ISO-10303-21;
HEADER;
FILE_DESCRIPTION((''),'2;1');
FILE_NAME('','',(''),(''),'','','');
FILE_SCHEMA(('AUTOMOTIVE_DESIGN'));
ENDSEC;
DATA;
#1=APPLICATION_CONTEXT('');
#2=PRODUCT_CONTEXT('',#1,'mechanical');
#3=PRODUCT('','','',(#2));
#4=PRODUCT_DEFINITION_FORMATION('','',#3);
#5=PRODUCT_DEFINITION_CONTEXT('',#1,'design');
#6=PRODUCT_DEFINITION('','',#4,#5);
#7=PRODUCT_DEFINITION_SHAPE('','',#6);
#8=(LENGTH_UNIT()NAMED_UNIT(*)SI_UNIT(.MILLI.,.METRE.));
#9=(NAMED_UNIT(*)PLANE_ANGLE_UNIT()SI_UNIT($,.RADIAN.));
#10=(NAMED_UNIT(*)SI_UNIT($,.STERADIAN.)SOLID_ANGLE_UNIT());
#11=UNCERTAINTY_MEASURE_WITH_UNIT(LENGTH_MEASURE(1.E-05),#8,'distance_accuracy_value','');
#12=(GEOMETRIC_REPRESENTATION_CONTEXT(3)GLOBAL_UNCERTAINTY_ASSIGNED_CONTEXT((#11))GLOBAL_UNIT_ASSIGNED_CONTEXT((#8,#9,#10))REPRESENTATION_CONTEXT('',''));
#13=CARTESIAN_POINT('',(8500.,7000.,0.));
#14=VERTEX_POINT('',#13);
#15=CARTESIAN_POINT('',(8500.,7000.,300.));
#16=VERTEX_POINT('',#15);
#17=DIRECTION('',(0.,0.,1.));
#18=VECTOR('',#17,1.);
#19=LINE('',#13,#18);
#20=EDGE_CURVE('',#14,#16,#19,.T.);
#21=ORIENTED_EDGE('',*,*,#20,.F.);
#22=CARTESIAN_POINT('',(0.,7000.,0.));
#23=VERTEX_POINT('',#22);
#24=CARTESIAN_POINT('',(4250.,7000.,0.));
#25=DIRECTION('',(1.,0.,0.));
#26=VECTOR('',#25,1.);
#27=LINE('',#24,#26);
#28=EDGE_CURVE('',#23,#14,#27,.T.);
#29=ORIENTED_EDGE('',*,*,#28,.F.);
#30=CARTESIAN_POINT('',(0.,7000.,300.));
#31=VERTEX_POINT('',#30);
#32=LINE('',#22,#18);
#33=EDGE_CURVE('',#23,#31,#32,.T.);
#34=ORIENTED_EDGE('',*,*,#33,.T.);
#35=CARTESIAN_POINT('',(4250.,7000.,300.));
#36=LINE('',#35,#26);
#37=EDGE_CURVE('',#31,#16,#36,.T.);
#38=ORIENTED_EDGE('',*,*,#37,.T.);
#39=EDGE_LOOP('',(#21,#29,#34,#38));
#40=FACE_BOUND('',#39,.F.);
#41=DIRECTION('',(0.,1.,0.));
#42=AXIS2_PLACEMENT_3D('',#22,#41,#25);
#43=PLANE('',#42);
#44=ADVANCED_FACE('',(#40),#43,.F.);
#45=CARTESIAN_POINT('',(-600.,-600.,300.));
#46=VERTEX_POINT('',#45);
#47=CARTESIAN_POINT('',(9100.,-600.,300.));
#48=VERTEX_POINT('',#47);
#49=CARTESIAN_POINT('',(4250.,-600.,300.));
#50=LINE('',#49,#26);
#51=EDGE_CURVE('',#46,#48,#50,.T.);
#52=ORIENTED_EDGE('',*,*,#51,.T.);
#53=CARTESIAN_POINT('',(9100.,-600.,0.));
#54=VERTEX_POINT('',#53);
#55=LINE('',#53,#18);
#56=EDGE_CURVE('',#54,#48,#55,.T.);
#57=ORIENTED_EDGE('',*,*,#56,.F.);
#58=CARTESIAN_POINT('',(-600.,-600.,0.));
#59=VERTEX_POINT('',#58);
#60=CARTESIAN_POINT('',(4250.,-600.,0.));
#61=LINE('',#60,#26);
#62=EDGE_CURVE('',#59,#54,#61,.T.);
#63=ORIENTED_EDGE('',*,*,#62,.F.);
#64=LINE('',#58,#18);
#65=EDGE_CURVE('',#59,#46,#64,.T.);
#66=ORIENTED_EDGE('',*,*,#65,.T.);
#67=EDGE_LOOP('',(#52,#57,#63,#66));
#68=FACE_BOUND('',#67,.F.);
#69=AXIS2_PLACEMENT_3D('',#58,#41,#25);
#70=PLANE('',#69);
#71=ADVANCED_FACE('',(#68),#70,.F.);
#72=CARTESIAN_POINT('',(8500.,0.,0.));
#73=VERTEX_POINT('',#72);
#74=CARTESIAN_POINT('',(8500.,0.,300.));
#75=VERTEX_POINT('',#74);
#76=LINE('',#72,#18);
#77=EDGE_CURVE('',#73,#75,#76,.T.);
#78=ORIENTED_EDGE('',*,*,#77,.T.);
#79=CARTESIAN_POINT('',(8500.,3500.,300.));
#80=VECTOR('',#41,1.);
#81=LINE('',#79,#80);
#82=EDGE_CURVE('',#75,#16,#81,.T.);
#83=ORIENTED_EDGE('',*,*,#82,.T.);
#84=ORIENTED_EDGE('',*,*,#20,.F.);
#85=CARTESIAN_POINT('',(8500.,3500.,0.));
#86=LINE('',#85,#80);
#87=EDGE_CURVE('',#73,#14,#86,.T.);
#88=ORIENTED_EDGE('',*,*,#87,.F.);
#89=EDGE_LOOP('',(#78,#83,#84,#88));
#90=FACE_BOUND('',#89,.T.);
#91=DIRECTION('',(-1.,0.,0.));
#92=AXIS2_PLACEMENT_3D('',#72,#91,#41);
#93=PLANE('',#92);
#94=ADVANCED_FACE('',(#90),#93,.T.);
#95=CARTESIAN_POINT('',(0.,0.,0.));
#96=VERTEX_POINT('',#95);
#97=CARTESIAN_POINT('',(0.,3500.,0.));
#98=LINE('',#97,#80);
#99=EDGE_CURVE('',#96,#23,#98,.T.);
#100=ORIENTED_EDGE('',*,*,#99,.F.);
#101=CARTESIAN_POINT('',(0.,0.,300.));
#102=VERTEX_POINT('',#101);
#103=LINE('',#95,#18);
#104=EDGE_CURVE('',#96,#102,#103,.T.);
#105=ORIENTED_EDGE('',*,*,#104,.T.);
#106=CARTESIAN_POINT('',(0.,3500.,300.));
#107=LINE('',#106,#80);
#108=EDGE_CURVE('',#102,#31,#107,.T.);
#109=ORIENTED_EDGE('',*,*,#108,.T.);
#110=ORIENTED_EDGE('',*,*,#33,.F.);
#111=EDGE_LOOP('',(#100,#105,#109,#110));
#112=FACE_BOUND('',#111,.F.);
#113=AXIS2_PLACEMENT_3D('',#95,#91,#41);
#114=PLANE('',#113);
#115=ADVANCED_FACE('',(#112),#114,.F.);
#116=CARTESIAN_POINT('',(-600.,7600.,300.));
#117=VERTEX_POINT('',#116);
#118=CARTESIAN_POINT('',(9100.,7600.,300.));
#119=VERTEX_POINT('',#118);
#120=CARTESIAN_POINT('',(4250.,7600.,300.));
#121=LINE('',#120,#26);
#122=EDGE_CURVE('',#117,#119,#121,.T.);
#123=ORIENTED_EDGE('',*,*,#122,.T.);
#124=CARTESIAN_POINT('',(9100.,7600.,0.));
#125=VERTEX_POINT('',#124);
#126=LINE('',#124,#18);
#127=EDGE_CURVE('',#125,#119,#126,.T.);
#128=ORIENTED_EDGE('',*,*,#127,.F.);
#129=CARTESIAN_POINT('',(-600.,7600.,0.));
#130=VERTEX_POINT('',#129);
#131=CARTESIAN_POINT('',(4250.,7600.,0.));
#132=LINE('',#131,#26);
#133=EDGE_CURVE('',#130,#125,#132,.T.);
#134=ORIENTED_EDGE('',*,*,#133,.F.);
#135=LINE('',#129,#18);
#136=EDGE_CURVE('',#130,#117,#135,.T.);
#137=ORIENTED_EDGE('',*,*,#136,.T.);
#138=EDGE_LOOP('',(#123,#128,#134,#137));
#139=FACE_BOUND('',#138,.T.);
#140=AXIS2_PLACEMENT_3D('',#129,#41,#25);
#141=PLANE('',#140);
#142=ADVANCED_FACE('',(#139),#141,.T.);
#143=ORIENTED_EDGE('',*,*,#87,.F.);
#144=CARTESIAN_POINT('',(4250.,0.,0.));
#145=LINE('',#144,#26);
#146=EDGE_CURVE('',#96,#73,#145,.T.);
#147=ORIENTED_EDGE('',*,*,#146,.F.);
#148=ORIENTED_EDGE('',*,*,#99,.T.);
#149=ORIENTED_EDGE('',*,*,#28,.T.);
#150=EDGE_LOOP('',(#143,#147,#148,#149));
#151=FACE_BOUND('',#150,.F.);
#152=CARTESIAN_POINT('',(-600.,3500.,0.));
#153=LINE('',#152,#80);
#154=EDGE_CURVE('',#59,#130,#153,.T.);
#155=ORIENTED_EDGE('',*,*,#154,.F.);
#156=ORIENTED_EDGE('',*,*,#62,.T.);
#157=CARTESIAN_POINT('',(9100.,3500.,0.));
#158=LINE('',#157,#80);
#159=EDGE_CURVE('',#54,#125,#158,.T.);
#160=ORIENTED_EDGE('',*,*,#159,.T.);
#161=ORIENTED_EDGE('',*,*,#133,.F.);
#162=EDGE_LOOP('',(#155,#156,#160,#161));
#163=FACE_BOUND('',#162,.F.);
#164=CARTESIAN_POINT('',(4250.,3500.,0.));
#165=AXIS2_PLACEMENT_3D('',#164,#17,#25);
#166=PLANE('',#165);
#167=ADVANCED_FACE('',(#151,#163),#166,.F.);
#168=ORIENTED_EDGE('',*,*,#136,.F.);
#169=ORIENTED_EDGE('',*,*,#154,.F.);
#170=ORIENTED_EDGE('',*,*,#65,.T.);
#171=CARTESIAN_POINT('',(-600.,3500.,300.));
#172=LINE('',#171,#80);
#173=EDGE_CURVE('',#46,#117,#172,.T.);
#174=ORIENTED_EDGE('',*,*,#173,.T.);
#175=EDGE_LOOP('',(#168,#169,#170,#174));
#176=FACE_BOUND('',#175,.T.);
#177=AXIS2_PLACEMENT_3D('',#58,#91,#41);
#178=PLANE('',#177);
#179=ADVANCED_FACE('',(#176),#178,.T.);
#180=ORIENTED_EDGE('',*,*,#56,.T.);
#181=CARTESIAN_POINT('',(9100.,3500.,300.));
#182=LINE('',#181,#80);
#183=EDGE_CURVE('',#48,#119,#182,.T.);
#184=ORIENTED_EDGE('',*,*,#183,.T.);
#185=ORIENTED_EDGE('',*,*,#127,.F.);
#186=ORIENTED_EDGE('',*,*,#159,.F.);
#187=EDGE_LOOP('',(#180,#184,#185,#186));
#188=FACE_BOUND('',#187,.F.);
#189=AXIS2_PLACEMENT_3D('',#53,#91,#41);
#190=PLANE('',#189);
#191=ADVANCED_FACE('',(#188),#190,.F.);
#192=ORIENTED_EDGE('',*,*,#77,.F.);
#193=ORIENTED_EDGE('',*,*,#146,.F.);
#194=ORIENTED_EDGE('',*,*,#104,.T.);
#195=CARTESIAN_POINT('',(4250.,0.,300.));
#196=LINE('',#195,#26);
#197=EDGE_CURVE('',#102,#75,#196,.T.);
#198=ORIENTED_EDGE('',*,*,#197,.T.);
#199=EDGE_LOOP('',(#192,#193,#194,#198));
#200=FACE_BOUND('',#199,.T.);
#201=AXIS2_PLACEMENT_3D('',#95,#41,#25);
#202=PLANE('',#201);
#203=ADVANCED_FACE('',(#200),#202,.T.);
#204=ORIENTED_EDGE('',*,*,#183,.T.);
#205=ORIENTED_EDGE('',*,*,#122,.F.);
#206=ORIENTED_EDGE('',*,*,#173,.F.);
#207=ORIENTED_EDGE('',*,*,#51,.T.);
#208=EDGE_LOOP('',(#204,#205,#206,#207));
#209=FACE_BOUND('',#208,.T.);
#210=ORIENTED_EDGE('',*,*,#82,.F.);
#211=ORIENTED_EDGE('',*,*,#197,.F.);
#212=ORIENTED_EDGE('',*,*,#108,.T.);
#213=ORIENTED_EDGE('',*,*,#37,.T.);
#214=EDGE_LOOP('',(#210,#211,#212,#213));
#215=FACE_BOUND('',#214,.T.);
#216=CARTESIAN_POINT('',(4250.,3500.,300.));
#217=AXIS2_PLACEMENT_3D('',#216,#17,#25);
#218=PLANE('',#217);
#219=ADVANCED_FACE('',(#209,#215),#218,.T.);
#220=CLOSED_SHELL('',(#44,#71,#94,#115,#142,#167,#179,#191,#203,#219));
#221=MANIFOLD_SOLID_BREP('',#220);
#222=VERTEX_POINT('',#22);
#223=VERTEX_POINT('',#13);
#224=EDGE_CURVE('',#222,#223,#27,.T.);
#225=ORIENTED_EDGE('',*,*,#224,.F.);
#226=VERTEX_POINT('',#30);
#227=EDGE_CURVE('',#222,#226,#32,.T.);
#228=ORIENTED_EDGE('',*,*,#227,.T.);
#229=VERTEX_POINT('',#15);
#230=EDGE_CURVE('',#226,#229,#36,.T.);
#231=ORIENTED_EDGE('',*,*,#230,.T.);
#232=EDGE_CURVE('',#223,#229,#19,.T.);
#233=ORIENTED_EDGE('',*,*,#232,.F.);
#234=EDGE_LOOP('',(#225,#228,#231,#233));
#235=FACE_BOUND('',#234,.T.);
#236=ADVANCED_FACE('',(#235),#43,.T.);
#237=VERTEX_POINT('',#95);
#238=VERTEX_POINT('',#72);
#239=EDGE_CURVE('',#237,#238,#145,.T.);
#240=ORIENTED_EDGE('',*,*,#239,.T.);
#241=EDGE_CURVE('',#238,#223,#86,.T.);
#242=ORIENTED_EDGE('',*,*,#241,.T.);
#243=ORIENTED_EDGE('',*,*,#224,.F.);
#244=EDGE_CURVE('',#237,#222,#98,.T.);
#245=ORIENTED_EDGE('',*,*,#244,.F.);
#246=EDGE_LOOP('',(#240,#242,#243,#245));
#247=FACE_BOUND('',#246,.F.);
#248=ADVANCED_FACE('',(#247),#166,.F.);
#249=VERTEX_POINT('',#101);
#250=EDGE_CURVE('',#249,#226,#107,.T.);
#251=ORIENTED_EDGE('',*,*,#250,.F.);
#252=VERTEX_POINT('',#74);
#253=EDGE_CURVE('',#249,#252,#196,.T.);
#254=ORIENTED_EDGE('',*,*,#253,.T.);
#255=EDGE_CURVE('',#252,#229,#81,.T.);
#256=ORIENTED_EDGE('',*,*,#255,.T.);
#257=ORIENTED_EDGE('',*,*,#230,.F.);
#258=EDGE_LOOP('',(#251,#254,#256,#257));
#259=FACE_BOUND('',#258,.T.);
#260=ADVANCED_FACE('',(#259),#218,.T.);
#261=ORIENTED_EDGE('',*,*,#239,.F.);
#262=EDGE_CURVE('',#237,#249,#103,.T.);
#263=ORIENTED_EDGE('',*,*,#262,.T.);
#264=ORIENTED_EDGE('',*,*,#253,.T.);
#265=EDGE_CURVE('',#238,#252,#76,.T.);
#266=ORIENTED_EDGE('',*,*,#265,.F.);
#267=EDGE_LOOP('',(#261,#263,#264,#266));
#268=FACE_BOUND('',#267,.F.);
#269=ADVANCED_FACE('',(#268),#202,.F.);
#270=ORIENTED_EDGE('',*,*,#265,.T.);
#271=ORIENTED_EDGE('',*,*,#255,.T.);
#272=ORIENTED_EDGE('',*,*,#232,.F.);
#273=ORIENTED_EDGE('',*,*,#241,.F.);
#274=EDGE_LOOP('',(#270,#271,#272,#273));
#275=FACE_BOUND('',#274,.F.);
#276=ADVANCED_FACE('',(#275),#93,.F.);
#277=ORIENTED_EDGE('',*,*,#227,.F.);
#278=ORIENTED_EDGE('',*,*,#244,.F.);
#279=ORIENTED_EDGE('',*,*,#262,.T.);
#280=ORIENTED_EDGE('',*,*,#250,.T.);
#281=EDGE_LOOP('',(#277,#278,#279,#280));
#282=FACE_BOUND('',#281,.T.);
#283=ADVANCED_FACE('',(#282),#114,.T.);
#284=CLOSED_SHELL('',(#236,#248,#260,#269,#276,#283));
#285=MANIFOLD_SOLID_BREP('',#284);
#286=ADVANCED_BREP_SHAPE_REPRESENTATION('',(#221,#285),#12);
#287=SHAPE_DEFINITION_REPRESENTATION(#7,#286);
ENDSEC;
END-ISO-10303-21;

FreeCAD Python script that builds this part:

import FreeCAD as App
import Part
import Sketcher

V = App.Vector
Q = App.Units.Quantity


def add_polygon(sketch, points):
    """Adds a closed chain of lines whose ends are joined by coincident constraints."""
    first, n = sketch.GeometryCount, len(points)
    for a, b in zip(points, points[1:] + points[:1]):
        sketch.addGeometry(Part.LineSegment(App.Vector(*a, 0), App.Vector(*b, 0)), False)
    for i in range(n):
        sketch.addConstraint(Sketcher.Constraint("Coincident", first + i, 2, first + (i + 1) % n, 1))

doc = App.newDocument("Part")
body = doc.addObject("PartDesign::Body", "Body")

# Sketch on XY plane
sketch1 = body.newObject("Sketcher::SketchObject", "Sketch")
sketch1.AttachmentSupport = (doc.getObject("XY_Plane"), [""])
sketch1.MapMode = "FlatFace"
add_polygon(sketch1, [(0, 7000), (0, 0), (8500, 0), (8500, 7000)])  # lines 0-3
sketch1.addConstraint([
    Sketcher.Constraint("Vertical", 0),
    Sketcher.Constraint("Horizontal", 1),
    Sketcher.Constraint("Vertical", 2),
    Sketcher.Constraint("Horizontal", 3),
    Sketcher.Constraint("Coincident", 0, 2, -1, 1),
    Sketcher.Constraint("DistanceX", 1, 1, 1, 2, Q("8500 mm")),
    Sketcher.Constraint("DistanceY", 0, 2, 0, 1, Q("7000 mm")),
])
pad1 = body.newObject("PartDesign::Pad", "Pad")
pad1.Profile = sketch1
pad1.Length = 300
body2 = doc.addObject("PartDesign::Body", "Body001")

# Sketch on XY plane
sketch2 = body2.newObject("Sketcher::SketchObject", "Sketch001")
sketch2.AttachmentSupport = (doc.getObject("XY_Plane001"), [""])
sketch2.MapMode = "FlatFace"
add_polygon(sketch2, [(-600, 7600), (-600, -600), (9100, -600), (9100, 7600)])  # lines 0-3
add_polygon(sketch2, [(8500, 0), (0, 0), (0, 7000), (8500, 7000)])  # lines 4-7
sketch2.addConstraint([
    Sketcher.Constraint("Vertical", 0),
    Sketcher.Constraint("Horizontal", 1),
    Sketcher.Constraint("Vertical", 2),
    Sketcher.Constraint("Horizontal", 3),
    Sketcher.Constraint("Horizontal", 4),
    Sketcher.Constraint("Vertical", 5),
    Sketcher.Constraint("Horizontal", 6),
    Sketcher.Constraint("Vertical", 7),
    Sketcher.Constraint("Coincident", 4, 2, -1, 1),
    Sketcher.Constraint("DistanceX", 1, 1, 1, 2, Q("9700 mm")),
    Sketcher.Constraint("DistanceX", 4, 2, 4, 1, Q("8500 mm")),
    Sketcher.Constraint("DistanceY", 0, 2, 0, 1, Q("8200 mm")),
    Sketcher.Constraint("DistanceY", 5, 1, 5, 2, Q("7000 mm")),
    Sketcher.Constraint("DistanceX", 0, 2, -1, 1, Q("600 mm")),
    Sketcher.Constraint("DistanceY", 0, 2, -1, 1, Q("600 mm")),
])
pad2 = body2.newObject("PartDesign::Pad", "Pad001")
pad2.Profile = sketch2
pad2.Length = 300

doc.recompute()
